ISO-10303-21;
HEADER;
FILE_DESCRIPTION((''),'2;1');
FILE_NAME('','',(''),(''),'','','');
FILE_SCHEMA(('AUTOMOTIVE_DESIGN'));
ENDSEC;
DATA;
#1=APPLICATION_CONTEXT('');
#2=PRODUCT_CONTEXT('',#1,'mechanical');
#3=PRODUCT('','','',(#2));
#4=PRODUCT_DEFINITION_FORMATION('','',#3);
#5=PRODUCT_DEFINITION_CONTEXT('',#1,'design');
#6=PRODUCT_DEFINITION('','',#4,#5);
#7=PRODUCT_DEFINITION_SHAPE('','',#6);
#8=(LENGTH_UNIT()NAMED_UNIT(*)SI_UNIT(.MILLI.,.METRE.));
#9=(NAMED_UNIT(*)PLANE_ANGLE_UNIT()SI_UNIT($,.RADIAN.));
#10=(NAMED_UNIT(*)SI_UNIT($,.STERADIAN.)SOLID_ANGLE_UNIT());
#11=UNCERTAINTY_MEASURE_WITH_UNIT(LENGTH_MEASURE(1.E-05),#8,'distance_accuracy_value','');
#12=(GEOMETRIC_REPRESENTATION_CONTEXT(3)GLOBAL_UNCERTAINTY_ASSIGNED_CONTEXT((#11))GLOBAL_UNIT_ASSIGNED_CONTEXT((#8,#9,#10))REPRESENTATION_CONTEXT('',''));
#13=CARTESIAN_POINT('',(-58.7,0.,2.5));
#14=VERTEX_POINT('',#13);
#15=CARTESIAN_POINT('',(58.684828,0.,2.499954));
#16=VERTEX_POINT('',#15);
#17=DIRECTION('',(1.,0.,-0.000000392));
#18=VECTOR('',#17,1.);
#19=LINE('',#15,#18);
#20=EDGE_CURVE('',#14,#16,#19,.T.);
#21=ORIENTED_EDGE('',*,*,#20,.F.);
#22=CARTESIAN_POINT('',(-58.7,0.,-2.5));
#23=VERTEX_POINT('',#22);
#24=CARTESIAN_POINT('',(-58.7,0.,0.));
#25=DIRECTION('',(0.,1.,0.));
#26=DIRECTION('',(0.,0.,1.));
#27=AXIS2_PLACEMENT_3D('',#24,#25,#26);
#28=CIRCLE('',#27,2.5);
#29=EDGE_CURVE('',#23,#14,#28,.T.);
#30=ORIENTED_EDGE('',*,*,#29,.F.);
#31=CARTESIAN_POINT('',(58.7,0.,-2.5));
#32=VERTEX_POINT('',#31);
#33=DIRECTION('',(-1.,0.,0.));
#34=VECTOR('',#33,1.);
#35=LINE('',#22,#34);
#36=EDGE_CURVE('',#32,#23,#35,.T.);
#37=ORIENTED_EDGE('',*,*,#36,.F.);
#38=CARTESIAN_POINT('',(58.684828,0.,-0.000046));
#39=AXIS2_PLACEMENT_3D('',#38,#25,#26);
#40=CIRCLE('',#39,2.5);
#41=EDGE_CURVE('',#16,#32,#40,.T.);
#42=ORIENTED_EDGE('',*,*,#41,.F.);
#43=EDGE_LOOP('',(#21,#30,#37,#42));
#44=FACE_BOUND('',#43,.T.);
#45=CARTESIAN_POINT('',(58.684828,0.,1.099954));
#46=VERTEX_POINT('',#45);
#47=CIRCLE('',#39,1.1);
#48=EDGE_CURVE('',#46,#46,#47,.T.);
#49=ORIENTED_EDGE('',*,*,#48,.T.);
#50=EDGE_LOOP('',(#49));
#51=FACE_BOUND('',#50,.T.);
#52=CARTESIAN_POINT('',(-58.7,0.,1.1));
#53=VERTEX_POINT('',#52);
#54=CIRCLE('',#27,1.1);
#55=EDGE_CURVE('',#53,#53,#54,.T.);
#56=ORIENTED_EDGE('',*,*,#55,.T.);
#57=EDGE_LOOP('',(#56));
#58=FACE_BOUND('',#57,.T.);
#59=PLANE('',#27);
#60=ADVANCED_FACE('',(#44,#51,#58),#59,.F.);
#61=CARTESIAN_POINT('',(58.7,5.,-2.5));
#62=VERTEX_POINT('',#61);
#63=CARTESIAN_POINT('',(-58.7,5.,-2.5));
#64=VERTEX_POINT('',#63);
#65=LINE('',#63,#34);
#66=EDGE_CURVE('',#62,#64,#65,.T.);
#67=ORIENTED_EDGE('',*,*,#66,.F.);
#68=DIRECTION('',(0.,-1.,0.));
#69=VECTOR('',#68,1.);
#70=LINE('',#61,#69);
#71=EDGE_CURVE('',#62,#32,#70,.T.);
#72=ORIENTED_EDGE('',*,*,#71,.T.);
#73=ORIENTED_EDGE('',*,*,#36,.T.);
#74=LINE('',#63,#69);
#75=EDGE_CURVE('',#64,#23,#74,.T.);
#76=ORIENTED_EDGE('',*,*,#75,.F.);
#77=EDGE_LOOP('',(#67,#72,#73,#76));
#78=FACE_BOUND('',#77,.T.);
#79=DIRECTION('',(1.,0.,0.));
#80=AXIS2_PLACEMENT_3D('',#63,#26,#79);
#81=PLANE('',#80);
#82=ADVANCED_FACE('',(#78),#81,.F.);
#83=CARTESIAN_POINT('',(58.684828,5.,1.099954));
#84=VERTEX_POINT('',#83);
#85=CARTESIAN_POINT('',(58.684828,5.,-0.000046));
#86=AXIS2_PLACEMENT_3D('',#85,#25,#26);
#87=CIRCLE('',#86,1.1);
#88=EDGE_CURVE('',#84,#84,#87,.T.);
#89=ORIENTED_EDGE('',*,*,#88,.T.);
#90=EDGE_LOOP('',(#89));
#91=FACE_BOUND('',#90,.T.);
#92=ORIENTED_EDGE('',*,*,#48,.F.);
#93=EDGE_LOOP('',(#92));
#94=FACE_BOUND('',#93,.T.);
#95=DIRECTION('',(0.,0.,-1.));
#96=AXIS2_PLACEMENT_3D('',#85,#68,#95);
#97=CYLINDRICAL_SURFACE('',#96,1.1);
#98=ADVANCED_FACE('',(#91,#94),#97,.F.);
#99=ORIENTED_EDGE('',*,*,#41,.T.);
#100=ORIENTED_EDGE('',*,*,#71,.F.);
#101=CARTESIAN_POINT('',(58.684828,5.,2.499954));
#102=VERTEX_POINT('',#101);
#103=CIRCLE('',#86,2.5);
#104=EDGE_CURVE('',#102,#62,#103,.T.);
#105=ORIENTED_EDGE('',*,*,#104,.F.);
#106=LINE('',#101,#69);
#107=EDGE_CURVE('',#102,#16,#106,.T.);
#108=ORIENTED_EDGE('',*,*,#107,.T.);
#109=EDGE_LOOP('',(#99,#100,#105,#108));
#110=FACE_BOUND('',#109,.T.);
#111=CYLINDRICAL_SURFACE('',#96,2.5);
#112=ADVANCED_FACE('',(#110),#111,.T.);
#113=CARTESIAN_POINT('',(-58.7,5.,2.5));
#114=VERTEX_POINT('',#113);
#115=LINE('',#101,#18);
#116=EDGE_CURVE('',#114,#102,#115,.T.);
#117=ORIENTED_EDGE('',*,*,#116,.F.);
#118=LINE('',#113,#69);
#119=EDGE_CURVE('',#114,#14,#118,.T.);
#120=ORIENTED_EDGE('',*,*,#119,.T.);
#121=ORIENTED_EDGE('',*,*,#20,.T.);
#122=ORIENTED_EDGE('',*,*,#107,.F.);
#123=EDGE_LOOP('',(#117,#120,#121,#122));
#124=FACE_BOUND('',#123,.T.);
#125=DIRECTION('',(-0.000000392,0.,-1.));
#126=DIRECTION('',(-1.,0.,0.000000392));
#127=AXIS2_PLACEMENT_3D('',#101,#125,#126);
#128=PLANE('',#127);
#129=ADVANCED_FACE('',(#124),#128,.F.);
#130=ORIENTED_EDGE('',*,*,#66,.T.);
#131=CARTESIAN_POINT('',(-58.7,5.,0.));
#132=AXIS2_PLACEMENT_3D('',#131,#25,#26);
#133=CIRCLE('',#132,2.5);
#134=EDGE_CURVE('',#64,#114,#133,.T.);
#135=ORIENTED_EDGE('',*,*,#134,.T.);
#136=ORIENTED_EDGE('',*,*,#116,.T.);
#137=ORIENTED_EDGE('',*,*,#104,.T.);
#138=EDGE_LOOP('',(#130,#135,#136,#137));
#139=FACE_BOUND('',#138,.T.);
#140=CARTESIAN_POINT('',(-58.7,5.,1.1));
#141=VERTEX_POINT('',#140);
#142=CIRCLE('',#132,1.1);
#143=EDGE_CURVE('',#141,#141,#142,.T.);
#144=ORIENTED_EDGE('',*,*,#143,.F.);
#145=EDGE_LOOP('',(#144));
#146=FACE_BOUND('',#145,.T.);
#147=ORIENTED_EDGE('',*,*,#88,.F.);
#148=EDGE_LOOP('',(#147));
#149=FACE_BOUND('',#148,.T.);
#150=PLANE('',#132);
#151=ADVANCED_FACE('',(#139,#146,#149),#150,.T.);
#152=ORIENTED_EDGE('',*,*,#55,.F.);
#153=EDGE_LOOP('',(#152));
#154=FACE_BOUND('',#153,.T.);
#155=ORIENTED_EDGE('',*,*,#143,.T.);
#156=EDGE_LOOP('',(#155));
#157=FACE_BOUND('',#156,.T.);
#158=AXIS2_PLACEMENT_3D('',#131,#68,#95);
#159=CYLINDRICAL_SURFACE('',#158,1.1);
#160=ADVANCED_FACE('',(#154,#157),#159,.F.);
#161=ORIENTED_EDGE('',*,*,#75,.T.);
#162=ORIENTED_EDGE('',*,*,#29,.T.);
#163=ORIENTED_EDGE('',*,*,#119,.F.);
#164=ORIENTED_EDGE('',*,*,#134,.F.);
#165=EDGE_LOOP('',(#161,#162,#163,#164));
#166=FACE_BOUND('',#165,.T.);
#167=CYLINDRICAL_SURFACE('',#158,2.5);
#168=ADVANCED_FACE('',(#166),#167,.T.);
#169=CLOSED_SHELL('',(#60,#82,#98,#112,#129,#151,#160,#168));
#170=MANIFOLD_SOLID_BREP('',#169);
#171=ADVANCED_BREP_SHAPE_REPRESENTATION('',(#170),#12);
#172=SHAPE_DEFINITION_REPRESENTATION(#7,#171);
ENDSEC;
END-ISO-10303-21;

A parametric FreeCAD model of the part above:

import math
import FreeCAD as App
import Part
import Sketcher

V = App.Vector
Q = App.Units.Quantity

doc = App.newDocument("Part")
params = doc.addObject("Spreadsheet::Sheet", "Params")
for row, (alias, value) in enumerate([
    ("sketch1_diameter", "2.2 mm"),
    ("sketch1_radius", "2.5 mm"),
    ("sketch1_width", "117.4 mm"),
    ("pad1_length", "5 mm"),
], start=1):
    params.set(f"A{row}", alias)
    params.set(f"B{row}", "=" + value)
    params.setAlias(f"B{row}", alias)

body = doc.addObject("PartDesign::Body", "Body")

sketch1 = body.newObject("Sketcher::SketchObject", "Sketch")
sketch1.AttachmentSupport = (doc.getObject("XZ_Plane"), [""])
sketch1.MapMode = "FlatFace"
sketch1.addGeometry(Part.LineSegment(V(58.7, -2.5, 0), V(-58.7, -2.5, 0)), False)
sketch1.addGeometry(Part.ArcOfCircle(Part.Circle(V(-58.7, 0, 0), V(0, 0, 1), 2.5), math.radians(90), math.radians(270)), False)
sketch1.addGeometry(Part.LineSegment(V(-58.7, 2.5, 0), V(58.684828, 2.499954, 0)), False)
sketch1.addGeometry(Part.ArcOfCircle(Part.Circle(V(58.684828, -0.000046, 0), V(0, 0, 1), 2.5), math.radians(-89.652291), math.radians(90)), False)
sketch1.addGeometry(Part.Circle(V(-58.7, 0, 0), V(0, 0, 1), 1.1), False)
sketch1.addGeometry(Part.Circle(V(58.684828, -0.000046, 0), V(0, 0, 1), 1.1), False)
sketch1.addConstraint(Sketcher.Constraint("Tangent", 0, 2, 1, 2))
sketch1.addConstraint(Sketcher.Constraint("Tangent", 1, 1, 2, 1))
sketch1.addConstraint(Sketcher.Constraint("Tangent", 2, 2, 3, 2))
sketch1.addConstraint(Sketcher.Constraint("Coincident", 3, 1, 0, 1))
sketch1.addConstraint(Sketcher.Constraint("Horizontal", 0))
sketch1.addConstraint(Sketcher.Constraint("Coincident", 4, 3, 1, 3))
sketch1.addConstraint(Sketcher.Constraint("Coincident", 5, 3, 3, 3))
sketch1.addConstraint(Sketcher.Constraint("Equal", 1, 3))
sketch1.addConstraint(Sketcher.Constraint("Equal", 4, 5))
sketch1.addConstraint(Sketcher.Constraint("Symmetric", 1, 1, 3, 1, -1, 1))
sketch1.addConstraint(Sketcher.Constraint("Diameter", 4, Q("2.2 mm")))
sketch1.addConstraint(Sketcher.Constraint("Radius", 1, Q("2.5 mm")))
sketch1.addConstraint(Sketcher.Constraint("DistanceX", 0, 2, 0, 1, Q("117.4 mm")))
sketch1.addConstraint(Sketcher.Constraint("Distance", 2, Q("117.384828 mm")))
sketch1.setExpression("Constraints[10]", "Params.sketch1_diameter")
sketch1.setExpression("Constraints[11]", "Params.sketch1_radius")
sketch1.setExpression("Constraints[12]", "Params.sketch1_width")
pad1 = body.newObject("PartDesign::Pad", "Pad")
pad1.Profile = sketch1
pad1.setExpression("Length", "Params.pad1_length")
pad1.Reversed = True

doc.recompute()
